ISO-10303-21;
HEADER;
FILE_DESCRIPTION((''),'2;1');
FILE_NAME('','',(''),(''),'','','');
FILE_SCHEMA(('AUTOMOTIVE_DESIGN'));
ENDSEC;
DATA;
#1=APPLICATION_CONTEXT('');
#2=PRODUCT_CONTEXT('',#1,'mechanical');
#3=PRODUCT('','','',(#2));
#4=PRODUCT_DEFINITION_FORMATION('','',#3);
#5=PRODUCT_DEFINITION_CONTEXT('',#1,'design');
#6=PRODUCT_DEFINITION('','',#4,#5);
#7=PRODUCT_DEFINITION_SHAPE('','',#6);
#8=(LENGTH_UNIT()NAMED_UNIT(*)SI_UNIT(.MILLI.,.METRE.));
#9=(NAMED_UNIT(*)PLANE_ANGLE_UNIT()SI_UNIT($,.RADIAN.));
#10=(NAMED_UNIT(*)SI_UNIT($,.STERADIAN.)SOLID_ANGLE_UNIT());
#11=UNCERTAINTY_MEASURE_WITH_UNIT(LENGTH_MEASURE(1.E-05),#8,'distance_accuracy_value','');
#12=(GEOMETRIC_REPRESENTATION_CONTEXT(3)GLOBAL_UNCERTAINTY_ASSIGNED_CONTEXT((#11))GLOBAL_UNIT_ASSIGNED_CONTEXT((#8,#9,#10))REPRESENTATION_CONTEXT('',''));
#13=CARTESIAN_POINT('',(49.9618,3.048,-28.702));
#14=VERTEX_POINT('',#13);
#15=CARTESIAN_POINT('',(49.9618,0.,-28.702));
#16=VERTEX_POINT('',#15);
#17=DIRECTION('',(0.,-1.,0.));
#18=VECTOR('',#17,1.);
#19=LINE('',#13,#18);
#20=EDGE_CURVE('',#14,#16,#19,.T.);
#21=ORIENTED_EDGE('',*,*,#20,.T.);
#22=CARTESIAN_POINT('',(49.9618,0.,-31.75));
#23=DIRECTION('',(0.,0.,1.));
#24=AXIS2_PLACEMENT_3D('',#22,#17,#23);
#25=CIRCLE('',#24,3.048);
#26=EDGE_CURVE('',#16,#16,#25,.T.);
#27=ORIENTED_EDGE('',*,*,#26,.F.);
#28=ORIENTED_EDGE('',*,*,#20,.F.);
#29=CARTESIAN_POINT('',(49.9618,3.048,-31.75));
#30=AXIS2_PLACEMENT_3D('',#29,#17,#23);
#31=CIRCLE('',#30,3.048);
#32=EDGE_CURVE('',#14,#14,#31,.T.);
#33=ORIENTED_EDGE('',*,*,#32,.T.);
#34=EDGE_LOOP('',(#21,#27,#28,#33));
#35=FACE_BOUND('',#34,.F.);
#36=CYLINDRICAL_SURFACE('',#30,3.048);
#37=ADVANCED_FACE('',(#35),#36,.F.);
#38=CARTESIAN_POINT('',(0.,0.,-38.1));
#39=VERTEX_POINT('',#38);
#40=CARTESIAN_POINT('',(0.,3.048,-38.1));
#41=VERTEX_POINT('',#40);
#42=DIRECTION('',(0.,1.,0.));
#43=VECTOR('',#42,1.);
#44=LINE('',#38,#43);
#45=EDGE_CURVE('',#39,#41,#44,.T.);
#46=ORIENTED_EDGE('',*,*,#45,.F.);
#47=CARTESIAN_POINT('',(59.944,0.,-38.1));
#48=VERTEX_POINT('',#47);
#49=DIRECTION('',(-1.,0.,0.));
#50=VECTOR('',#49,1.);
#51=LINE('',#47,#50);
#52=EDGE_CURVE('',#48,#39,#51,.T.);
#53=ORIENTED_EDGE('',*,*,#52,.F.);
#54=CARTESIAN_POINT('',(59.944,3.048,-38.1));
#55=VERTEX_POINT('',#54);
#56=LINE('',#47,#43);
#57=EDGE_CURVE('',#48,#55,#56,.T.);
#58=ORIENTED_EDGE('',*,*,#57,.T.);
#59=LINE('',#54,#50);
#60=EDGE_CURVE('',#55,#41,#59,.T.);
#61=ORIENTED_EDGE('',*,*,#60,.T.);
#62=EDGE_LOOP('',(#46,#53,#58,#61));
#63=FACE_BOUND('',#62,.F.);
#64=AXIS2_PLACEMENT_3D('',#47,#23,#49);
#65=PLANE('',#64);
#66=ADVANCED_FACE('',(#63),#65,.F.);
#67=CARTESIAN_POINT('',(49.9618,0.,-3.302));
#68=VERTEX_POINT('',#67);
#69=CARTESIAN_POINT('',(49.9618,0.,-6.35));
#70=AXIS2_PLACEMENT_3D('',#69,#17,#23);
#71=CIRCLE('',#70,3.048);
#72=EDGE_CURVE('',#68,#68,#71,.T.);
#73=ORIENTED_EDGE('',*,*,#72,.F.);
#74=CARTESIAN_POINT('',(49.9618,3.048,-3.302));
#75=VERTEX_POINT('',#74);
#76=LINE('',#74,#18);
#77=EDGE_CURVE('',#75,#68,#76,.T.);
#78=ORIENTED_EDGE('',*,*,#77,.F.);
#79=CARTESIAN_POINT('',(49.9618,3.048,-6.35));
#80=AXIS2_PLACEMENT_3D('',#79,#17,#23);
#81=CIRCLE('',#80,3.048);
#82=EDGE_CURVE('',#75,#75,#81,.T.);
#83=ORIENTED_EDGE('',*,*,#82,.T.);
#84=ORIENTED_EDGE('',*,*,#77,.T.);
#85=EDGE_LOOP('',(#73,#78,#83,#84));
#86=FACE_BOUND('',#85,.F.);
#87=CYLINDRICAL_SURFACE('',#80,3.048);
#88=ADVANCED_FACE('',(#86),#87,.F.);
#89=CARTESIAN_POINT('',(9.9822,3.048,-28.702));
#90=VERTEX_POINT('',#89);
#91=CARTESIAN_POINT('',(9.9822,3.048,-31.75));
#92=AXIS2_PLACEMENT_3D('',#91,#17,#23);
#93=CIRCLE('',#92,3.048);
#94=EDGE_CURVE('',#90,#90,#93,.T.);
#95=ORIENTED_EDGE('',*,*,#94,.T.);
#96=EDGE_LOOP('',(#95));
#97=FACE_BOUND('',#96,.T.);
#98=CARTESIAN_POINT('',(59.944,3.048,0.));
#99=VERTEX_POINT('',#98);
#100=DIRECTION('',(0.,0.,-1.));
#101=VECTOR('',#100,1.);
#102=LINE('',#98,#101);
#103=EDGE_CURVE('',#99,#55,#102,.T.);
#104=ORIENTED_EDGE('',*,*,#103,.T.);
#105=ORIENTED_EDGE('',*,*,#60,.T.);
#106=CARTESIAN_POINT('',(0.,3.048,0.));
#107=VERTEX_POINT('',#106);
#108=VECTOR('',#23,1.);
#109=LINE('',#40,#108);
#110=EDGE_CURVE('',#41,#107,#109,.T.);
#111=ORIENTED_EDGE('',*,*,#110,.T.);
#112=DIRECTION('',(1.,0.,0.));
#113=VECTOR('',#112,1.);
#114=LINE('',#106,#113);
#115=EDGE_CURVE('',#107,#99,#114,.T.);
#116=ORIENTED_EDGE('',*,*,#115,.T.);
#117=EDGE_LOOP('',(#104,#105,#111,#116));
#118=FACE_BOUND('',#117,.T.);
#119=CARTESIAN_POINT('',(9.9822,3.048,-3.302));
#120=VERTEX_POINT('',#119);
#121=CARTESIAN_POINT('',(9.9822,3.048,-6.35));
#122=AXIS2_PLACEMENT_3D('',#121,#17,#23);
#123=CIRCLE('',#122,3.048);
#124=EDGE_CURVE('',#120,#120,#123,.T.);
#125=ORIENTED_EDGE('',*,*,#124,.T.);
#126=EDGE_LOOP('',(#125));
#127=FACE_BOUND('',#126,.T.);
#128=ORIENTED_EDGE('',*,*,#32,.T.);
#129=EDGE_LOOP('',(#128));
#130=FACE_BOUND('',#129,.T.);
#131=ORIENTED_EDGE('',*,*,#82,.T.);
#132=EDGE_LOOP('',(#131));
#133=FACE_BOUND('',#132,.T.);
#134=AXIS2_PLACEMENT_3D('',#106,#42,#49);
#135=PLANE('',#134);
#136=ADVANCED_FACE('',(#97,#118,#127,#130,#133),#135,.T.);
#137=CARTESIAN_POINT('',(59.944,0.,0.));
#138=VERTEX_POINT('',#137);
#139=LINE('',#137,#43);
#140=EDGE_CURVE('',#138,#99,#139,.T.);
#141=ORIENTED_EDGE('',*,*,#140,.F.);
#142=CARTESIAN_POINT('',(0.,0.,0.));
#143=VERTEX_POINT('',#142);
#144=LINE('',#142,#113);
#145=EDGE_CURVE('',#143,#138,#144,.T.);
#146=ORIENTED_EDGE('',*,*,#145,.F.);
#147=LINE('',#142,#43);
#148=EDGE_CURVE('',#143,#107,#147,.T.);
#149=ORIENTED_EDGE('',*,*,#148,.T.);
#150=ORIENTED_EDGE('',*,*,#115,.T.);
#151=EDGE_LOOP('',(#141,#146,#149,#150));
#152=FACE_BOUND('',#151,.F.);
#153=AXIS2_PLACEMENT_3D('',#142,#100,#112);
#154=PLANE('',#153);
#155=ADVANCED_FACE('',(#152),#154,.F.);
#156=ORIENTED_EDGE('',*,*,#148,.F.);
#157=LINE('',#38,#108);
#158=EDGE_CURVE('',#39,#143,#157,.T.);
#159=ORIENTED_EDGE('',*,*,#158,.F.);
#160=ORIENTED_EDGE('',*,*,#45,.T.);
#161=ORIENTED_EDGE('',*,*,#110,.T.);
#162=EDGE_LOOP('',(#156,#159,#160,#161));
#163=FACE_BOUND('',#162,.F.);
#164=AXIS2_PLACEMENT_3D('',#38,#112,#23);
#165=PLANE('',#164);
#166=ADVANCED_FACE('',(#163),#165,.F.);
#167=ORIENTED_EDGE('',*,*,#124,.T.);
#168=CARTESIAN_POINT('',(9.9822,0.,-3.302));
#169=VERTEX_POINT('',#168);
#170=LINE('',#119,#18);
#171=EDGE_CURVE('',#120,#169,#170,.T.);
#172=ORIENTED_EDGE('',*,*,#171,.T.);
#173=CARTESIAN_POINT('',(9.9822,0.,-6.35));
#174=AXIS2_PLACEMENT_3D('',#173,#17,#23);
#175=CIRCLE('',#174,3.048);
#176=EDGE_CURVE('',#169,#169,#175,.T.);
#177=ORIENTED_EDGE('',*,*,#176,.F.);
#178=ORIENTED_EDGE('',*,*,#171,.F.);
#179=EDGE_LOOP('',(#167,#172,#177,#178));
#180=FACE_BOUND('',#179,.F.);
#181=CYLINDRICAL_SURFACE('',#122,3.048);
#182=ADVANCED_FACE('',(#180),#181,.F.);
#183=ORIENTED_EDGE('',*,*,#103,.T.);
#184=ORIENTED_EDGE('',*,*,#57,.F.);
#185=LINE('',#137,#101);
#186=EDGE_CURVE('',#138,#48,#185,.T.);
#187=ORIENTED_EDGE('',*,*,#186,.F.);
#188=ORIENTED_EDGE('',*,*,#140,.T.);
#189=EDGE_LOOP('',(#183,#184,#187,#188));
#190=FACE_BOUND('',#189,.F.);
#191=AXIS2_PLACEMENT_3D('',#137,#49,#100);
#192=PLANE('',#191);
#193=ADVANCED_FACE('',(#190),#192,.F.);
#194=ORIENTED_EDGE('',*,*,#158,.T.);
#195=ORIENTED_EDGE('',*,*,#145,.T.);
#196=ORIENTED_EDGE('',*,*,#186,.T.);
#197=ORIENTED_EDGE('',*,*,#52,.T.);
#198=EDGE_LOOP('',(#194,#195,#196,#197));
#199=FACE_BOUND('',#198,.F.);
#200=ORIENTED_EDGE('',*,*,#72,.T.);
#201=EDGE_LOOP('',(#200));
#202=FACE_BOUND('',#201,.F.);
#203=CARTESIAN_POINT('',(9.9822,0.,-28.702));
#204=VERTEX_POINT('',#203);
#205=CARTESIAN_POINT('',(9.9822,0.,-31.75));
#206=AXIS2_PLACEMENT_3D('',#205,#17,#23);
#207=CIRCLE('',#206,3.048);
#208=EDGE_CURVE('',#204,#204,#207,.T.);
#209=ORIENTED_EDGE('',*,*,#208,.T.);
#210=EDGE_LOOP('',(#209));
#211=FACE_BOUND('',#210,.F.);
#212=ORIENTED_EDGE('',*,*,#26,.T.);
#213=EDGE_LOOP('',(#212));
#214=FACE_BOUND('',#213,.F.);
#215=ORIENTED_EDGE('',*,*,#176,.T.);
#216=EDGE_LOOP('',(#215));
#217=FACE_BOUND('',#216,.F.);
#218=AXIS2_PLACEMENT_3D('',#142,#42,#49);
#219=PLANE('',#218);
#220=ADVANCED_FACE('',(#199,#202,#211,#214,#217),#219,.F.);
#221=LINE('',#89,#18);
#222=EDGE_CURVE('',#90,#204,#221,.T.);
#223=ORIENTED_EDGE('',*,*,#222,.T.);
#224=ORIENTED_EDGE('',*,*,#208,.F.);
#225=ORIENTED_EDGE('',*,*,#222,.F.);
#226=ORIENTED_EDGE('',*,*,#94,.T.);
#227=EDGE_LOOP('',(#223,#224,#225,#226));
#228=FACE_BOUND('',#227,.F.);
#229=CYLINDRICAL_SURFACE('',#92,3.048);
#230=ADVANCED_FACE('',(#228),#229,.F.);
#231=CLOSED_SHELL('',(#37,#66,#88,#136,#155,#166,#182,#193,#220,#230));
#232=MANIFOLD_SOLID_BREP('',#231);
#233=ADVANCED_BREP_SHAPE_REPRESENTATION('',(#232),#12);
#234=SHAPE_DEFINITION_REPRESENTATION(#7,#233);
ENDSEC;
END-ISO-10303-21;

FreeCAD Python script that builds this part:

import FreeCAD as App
import Part
import Sketcher

V = App.Vector
Q = App.Units.Quantity

doc = App.newDocument("Part")
body = doc.addObject("PartDesign::Body", "Body")

# Sketch on XZ plane
sketch1 = doc.addObject("Sketcher::SketchObject", "Sketch")
body.addObject(sketch1)
sketch1.AttachmentSupport = (doc.XZ_Plane, [""])
sketch1.MapMode = "FlatFace"
sketch1.addGeometry([
    Part.LineSegment(V(0, -38.1, 0), V(0, 0, 0)),
    Part.LineSegment(V(0, 0, 0), V(59.944, 0, 0)),
    Part.LineSegment(V(59.944, 0, 0), V(59.944, -38.1, 0)),
    Part.LineSegment(V(59.944, -38.1, 0), V(0, -38.1, 0)),
], False)
sketch1.addConstraint([
    Sketcher.Constraint("Coincident", 0, 2, 1, 1),
    Sketcher.Constraint("Coincident", 1, 2, 2, 1),
    Sketcher.Constraint("Coincident", 2, 2, 3, 1),
    Sketcher.Constraint("Coincident", 3, 2, 0, 1),
    Sketcher.Constraint("Vertical", 0),
    Sketcher.Constraint("Horizontal", 1),
    Sketcher.Constraint("Vertical", 2),
    Sketcher.Constraint("Horizontal", 3),
    Sketcher.Constraint("Coincident", 0, 2, -1, 1),
    Sketcher.Constraint("DistanceY", 0, 1, 0, 2, Q("1.5 in")),
    Sketcher.Constraint("DistanceX", 1, 1, 1, 2, Q("2.36 in")),
])
pad1 = doc.addObject("PartDesign::Pad", "Pad")
body.addObject(pad1)
pad1.Profile = sketch1
pad1.Length = Q("0.12 in")
pad1.Reversed = True

# Sketch on XZ plane
sketch2 = doc.addObject("Sketcher::SketchObject", "Sketch001")
body.addObject(sketch2)
sketch2.AttachmentSupport = (doc.XZ_Plane, [""])
sketch2.MapMode = "FlatFace"
sketch2.AttachmentOffset = App.Placement(V(0, 0, -0.12 * 25.4), App.Rotation())
sketch2.addGeometry([
    Part.Circle(V(9.9822, -6.35, 0), V(0, 0, 1), 3.048),
    Part.Circle(V(9.9822, -31.75, 0), V(0, 0, 1), 3.048),
    Part.Circle(V(49.9618, -31.75, 0), V(0, 0, 1), 3.048),
    Part.Circle(V(49.9618, -6.35, 0), V(0, 0, 1), 3.048),
], False)
sketch2.addConstraint([
    Sketcher.Constraint("Equal", 0, 1),
    Sketcher.Constraint("Equal", 1, 2),
    Sketcher.Constraint("Equal", 2, 3),
    Sketcher.Constraint("Horizontal", 1, 3, 2, 3),
    Sketcher.Constraint("Horizontal", 0, 3, 3, 3),
    Sketcher.Constraint("Vertical", 0, 3, 1, 3),
    Sketcher.Constraint("Vertical", 2, 3, 3, 3),
    Sketcher.Constraint("Diameter", 0, Q("0.24 in")),
    Sketcher.Constraint("DistanceY", 1, 3, 0, 3, Q("1 in")),
    Sketcher.Constraint("DistanceY", 0, 3, -1, 1, Q("0.25 in")),
    Sketcher.Constraint("DistanceX", -1, 1, 0, 3, Q("0.393 in")),
    Sketcher.Constraint("DistanceX", -1, 1, 2, 3, Q("1.967 in")),
])
doc.recompute()
hole = doc.addObject("PartDesign::Hole", "Hole")
body.addObject(hole)
hole.Profile = sketch2
hole.ThreadType = "None"
hole.Diameter = Q("0.24 in")
hole.DepthType = "ThroughAll"
hole.Reversed = True

doc.recompute()
